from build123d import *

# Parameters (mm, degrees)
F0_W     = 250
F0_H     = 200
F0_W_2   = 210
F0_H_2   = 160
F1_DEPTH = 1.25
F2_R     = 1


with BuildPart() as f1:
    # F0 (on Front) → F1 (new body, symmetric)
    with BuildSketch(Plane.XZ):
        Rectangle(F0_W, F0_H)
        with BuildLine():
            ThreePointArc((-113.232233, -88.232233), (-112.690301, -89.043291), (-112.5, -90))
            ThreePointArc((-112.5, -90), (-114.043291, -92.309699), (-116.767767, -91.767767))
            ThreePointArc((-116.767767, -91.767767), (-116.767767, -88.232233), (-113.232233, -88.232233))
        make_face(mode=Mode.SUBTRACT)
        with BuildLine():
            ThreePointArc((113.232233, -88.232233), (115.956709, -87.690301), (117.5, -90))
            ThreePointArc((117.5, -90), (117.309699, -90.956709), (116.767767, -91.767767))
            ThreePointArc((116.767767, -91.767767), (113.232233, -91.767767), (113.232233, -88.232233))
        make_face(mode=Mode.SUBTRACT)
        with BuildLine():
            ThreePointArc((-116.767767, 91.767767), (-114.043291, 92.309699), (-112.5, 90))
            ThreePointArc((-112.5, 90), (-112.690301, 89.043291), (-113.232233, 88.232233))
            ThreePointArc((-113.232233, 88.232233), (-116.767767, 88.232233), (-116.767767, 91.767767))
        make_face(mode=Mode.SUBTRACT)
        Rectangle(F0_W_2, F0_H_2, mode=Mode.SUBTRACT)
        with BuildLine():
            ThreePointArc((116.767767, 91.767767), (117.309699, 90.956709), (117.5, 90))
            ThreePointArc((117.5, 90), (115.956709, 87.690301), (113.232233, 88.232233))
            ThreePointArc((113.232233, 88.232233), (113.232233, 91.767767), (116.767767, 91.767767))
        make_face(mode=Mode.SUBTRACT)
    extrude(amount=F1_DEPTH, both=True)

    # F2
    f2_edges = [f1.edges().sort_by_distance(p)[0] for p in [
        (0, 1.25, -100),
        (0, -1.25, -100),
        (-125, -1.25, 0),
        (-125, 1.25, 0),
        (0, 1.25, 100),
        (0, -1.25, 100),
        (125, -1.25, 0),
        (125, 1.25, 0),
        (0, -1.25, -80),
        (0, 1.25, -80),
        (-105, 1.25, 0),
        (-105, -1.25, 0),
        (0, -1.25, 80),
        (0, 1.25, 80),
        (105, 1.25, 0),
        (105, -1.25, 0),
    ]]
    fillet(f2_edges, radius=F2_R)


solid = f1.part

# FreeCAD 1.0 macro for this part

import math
import FreeCAD as App
import Part
import Sketcher
Q = App.Units.Quantity


def edges_at(feature, points):
    """Names of the edges that pass closest to the given points."""
    edges = feature.Shape.Edges
    near = lambda p: min(range(len(edges)), key=lambda i: edges[i].distToShape(Part.Vertex(*p))[0])
    return sorted({f"Edge{near(p) + 1}" for p in points})

doc = App.newDocument("Part")
body = doc.addObject("PartDesign::Body", "Body")

sketch1 = body.newObject("Sketcher::SketchObject", "Sketch")
sketch1.AttachmentSupport = (doc.getObject("XZ_Plane"), [""])
sketch1.MapMode = "FlatFace"
sketch1.addGeometry([
    Part.LineSegment(App.Vector(-125, 100, 0), App.Vector(-125, -100, 0)),
    Part.LineSegment(App.Vector(-125, -100, 0), App.Vector(125, -100, 0)),
    Part.LineSegment(App.Vector(125, -100, 0), App.Vector(125, 100, 0)),
    Part.LineSegment(App.Vector(125, 100, 0), App.Vector(-125, 100, 0)),
    Part.ArcOfCircle(Part.Circle(App.Vector(-115, -90, 0), App.Vector(0, 0, 1), 2.5), math.radians(45), math.radians(225)),
    Part.ArcOfCircle(Part.Circle(App.Vector(-115, -90, 0), App.Vector(0, 0, 1), 2.5), math.radians(0), math.radians(45)),
    Part.ArcOfCircle(Part.Circle(App.Vector(-115, -90, 0), App.Vector(0, 0, 1), 2.5), math.radians(-135), math.radians(0)),
    Part.ArcOfCircle(Part.Circle(App.Vector(115, -90, 0), App.Vector(0, 0, 1), 2.5), math.radians(135), math.radians(315)),
    Part.ArcOfCircle(Part.Circle(App.Vector(115, -90, 0), App.Vector(0, 0, 1), 2.5), math.radians(0), math.radians(135)),
    Part.ArcOfCircle(Part.Circle(App.Vector(115, -90, 0), App.Vector(0, 0, 1), 2.5), math.radians(-45), math.radians(0)),
    Part.ArcOfCircle(Part.Circle(App.Vector(-115, 90, 0), App.Vector(0, 0, 1), 2.5), math.radians(135), math.radians(315)),
    Part.ArcOfCircle(Part.Circle(App.Vector(-115, 90, 0), App.Vector(0, 0, 1), 2.5), math.radians(0), math.radians(135)),
    Part.ArcOfCircle(Part.Circle(App.Vector(-115, 90, 0), App.Vector(0, 0, 1), 2.5), math.radians(-45), math.radians(0)),
    Part.LineSegment(App.Vector(105, -80, 0), App.Vector(-105, -80, 0)),
    Part.LineSegment(App.Vector(-105, -80, 0), App.Vector(-105, 80, 0)),
    Part.LineSegment(App.Vector(-105, 80, 0), App.Vector(105, 80, 0)),
    Part.LineSegment(App.Vector(105, 80, 0), App.Vector(105, -80, 0)),
    Part.ArcOfCircle(Part.Circle(App.Vector(115, 90, 0), App.Vector(0, 0, 1), 2.5), math.radians(45), math.radians(225)),
    Part.ArcOfCircle(Part.Circle(App.Vector(115, 90, 0), App.Vector(0, 0, 1), 2.5), math.radians(0), math.radians(45)),
    Part.ArcOfCircle(Part.Circle(App.Vector(115, 90, 0), App.Vector(0, 0, 1), 2.5), math.radians(-135), math.radians(0)),
], False)
sketch1.addConstraint([
    Sketcher.Constraint("Coincident", 0, 2, 1, 1),
    Sketcher.Constraint("Coincident", 1, 2, 2, 1),
    Sketcher.Constraint("Coincident", 2, 2, 3, 1),
    Sketcher.Constraint("Coincident", 3, 2, 0, 1),
    Sketcher.Constraint("Tangent", 4, 1, 5, 2),
    Sketcher.Constraint("Tangent", 5, 1, 6, 2),
    Sketcher.Constraint("Tangent", 6, 1, 4, 2),
    Sketcher.Constraint("Tangent", 7, 1, 8, 2),
    Sketcher.Constraint("Tangent", 8, 1, 9, 2),
    Sketcher.Constraint("Tangent", 9, 1, 7, 2),
    Sketcher.Constraint("Tangent", 10, 1, 11, 2),
    Sketcher.Constraint("Tangent", 11, 1, 12, 2),
    Sketcher.Constraint("Tangent", 12, 1, 10, 2),
    Sketcher.Constraint("Coincident", 13, 2, 14, 1),
    Sketcher.Constraint("Coincident", 14, 2, 15, 1),
    Sketcher.Constraint("Coincident", 15, 2, 16, 1),
    Sketcher.Constraint("Coincident", 16, 2, 13, 1),
    Sketcher.Constraint("Tangent", 17, 1, 18, 2),
    Sketcher.Constraint("Tangent", 18, 1, 19, 2),
    Sketcher.Constraint("Tangent", 19, 1, 17, 2),
    Sketcher.Constraint("Vertical", 0),
    Sketcher.Constraint("Horizontal", 1),
    Sketcher.Constraint("Vertical", 2),
    Sketcher.Constraint("Horizontal", 3),
    Sketcher.Constraint("Horizontal", 13),
    Sketcher.Constraint("Vertical", 14),
    Sketcher.Constraint("Horizontal", 15),
    Sketcher.Constraint("Vertical", 16),
    Sketcher.Constraint("Equal", 6, 7),
    Sketcher.Constraint("Equal", 8, 10),
    Sketcher.Constraint("Equal", 11, 17),
    Sketcher.Constraint("Symmetric", 7, 3, 10, 3, -1, 1),
    Sketcher.Constraint("Symmetric", 4, 3, 17, 3, -1, 1),
    Sketcher.Constraint("Symmetric", 0, 2, 2, 2, -1, 1),
    Sketcher.Constraint("Symmetric", 13, 2, 15, 2, -1, 1),
    Sketcher.Constraint("Symmetric", 4, 3, 7, 3, -2),
    Sketcher.Constraint("Horizontal", 9, 3, 5, 1),
    Sketcher.Constraint("Horizontal", 4, 1, 7, 1),
    Sketcher.Constraint("Horizontal", 5, 1, 8, 1),
    Sketcher.Constraint("Horizontal", 6, 1, 9, 1),
    Sketcher.Constraint("Horizontal", 19, 3, 11, 1),
    Sketcher.Constraint("Horizontal", 10, 1, 17, 1),
    Sketcher.Constraint("Horizontal", 11, 1, 18, 1),
    Sketcher.Constraint("Horizontal", 12, 1, 19, 1),
    Sketcher.Constraint("Vertical", 6, 1, 10, 1),
    Sketcher.Constraint("Vertical", 4, 1, 12, 1),
    Sketcher.Constraint("Radius", 4, Q("2.5 mm")),
    Sketcher.Constraint("DistanceX", 1, 1, 1, 2, Q("250 mm")),
    Sketcher.Constraint("DistanceX", 13, 2, 13, 1, Q("210 mm")),
    Sketcher.Constraint("DistanceY", 0, 2, 0, 1, Q("200 mm")),
    Sketcher.Constraint("DistanceY", 14, 1, 14, 2, Q("160 mm")),
    Sketcher.Constraint("DistanceX", 4, 3, -1, 1, Q("115 mm")),
    Sketcher.Constraint("DistanceY", 4, 3, -1, 1, Q("90 mm")),
    Sketcher.Constraint("DistanceY", 4, 1, 10, 1, Q("180 mm")),
    Sketcher.Constraint("DistanceY", 4, 1, 12, 3, Q("178.232231 mm")),
])
pad1 = body.newObject("PartDesign::Pad", "Pad")
pad1.Profile = sketch1
pad1.Length = 2.5
pad1.Midplane = True
doc.recompute()

fillet = body.newObject("PartDesign::Fillet", "Fillet")
fillet.Base = (pad1, edges_at(pad1, [
    (0, 1.25, -100),
    (0, -1.25, -100),
    (-125, -1.25, 0),
    (-125, 1.25, 0),
    (0, 1.25, 100),
    (0, -1.25, 100),
    (125, -1.25, 0),
    (125, 1.25, 0),
    (0, -1.25, -80),
    (0, 1.25, -80),
    (-105, 1.25, 0),
    (-105, -1.25, 0),
    (0, -1.25, 80),
    (0, 1.25, 80),
    (105, 1.25, 0),
    (105, -1.25, 0),
]))
fillet.Radius = 1

doc.recompute()
